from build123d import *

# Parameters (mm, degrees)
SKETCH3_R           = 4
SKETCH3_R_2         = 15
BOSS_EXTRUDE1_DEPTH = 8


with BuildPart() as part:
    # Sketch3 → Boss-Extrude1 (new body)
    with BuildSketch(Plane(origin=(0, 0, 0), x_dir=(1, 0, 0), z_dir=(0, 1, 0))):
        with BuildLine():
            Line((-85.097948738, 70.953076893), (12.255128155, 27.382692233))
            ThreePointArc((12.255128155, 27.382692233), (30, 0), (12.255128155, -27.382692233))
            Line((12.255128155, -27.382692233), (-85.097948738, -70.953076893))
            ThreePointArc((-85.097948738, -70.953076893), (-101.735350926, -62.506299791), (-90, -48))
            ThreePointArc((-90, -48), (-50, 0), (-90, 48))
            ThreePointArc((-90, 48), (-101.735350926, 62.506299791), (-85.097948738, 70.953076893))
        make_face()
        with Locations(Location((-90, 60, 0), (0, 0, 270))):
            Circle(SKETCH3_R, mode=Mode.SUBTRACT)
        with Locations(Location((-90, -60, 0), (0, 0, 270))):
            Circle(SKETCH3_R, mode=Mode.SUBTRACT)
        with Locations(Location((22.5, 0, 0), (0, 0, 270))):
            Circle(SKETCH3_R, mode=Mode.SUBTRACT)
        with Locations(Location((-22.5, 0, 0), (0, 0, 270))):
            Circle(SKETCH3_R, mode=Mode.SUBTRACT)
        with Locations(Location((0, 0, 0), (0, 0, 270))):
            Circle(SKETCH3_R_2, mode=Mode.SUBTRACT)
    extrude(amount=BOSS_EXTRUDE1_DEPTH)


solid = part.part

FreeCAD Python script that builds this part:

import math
import FreeCAD as App
import Part
import Sketcher

V = App.Vector

doc = App.newDocument("Part")
body = doc.addObject("PartDesign::Body", "Body")

# Sketch on XZ plane
sketch1 = doc.addObject("Sketcher::SketchObject", "Sketch")
body.addObject(sketch1)
sketch1.AttachmentSupport = (doc.XZ_Plane, [""])
sketch1.MapMode = "FlatFace"
sketch1.addGeometry([
    Part.LineSegment(V(12.255128, -27.382692, 0), V(-85.097949, -70.953077, 0)),  # 0
    Part.ArcOfCircle(Part.Circle(V(-90, -60, 0), V(0, 0, 1), 12), math.radians(90), math.radians(294.11091)),  # 1
    Part.ArcOfCircle(Part.Circle(V(-98.8, 0, 0), V(0, 0, 1), 48.8), math.radians(-79.611142), math.radians(79.611142)),  # 2
    Part.ArcOfCircle(Part.Circle(V(-90, 60, 0), V(0, 0, 1), 12), math.radians(65.88909), math.radians(270)),  # 3
    Part.LineSegment(V(-85.097949, 70.953077, 0), V(12.255128, 27.382692, 0)),  # 4
    Part.ArcOfCircle(Part.Circle(V(0, 0, 0), V(0, 0, 1), 30), math.radians(-65.88909), math.radians(65.88909)),  # 5
    Part.Circle(V(-90, 60, 0), V(0, 0, 1), 4),  # 6
    Part.Circle(V(22.5, 0, 0), V(0, 0, 1), 4),  # 7
    Part.Circle(V(0, 0, 0), V(0, 0, 1), 15),  # 8
    Part.Circle(V(-22.5, 0, 0), V(0, 0, 1), 4),  # 9
    Part.Circle(V(-90, -60, 0), V(0, 0, 1), 4),  # 10
], False)
sketch1.addConstraint([
    Sketcher.Constraint("Tangent", 0, 2, 1, 2),
    Sketcher.Constraint("Coincident", 1, 1, 2, 1),
    Sketcher.Constraint("Coincident", 2, 2, 3, 2),
    Sketcher.Constraint("Tangent", 3, 1, 4, 1),
    Sketcher.Constraint("Tangent", 4, 2, 5, 2),
    Sketcher.Constraint("Tangent", 5, 1, 0, 1),
    Sketcher.Constraint("Coincident", 5, 3, -1, 1),
    Sketcher.Constraint("Coincident", 8, 3, -1, 1),
    Sketcher.Constraint("Coincident", 6, 3, 3, 3),
    Sketcher.Constraint("Coincident", 10, 3, 1, 3),
    Sketcher.Constraint("Equal", 1, 3),
    Sketcher.Constraint("Equal", 6, 7),
    Sketcher.Constraint("Equal", 7, 9),
    Sketcher.Constraint("Equal", 9, 10),
    Sketcher.Constraint("Symmetric", 7, 3, 9, 3, -1, 1),
    Sketcher.Constraint("Symmetric", 1, 3, 3, 3, -1),
    Sketcher.Constraint("PointOnObject", 2, 3, -1),
    Sketcher.Constraint("PointOnObject", 7, 3, -1),
    Sketcher.Constraint("Vertical", 10, 3, 1, 1),
    Sketcher.Constraint("Diameter", 6, 8.0),
    Sketcher.Constraint("Diameter", 8, 30.0),
    Sketcher.Constraint("Radius", 1, 12.0),
    Sketcher.Constraint("Radius", 5, 30.0),
    Sketcher.Constraint("Radius", 2, 48.8),
    Sketcher.Constraint("DistanceX", 1, 3, -1, 1, 90.0),
    Sketcher.Constraint("DistanceY", 1, 3, -1, 1, 60.0),
    Sketcher.Constraint("DistanceX", 9, 3, 7, 3, 45.0),
])
pad1 = doc.addObject("PartDesign::Pad", "Pad")
body.addObject(pad1)
pad1.Profile = sketch1
pad1.Length = 8
pad1.Reversed = True

doc.recompute()
